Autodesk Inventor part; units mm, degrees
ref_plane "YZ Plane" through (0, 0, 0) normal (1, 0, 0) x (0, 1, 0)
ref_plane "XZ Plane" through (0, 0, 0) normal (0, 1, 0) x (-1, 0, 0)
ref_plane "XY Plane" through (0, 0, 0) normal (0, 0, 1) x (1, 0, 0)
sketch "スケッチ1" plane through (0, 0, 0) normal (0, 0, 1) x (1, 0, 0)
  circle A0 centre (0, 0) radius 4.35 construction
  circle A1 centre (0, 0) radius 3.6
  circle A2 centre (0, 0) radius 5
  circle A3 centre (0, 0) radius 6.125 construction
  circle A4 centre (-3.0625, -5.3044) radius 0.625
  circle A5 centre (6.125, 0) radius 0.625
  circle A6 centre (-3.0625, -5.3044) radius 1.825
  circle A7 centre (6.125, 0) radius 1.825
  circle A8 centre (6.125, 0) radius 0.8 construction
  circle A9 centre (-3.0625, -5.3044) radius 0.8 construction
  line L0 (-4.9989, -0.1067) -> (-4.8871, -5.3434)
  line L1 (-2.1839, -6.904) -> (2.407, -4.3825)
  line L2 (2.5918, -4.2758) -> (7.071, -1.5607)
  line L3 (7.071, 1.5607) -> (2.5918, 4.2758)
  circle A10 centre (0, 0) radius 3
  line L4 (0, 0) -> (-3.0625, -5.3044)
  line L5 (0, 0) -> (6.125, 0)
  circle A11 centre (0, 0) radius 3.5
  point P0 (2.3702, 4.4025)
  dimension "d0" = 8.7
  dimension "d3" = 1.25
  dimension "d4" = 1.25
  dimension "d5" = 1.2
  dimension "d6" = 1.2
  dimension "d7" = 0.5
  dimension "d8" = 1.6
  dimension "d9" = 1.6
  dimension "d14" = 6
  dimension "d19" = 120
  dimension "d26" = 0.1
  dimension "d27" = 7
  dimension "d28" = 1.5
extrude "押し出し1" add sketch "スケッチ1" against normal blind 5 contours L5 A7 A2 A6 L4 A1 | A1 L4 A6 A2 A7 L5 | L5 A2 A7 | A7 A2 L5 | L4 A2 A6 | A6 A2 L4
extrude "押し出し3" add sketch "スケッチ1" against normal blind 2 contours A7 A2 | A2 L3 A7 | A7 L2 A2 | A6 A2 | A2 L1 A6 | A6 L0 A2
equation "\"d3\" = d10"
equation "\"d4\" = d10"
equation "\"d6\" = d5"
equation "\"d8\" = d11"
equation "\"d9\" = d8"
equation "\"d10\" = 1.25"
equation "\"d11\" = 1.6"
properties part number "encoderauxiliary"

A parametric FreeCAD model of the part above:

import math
import FreeCAD as App
import Part
import Sketcher

V = App.Vector
Q = App.Units.Quantity

doc = App.newDocument("Part")
body = doc.addObject("PartDesign::Body", "Body")

# Sketch on XY plane
sketch1 = body.newObject("Sketcher::SketchObject", "Sketch")
sketch1.AttachmentSupport = (doc.getObject("XY_Plane"), [""])
sketch1.MapMode = "FlatFace"
sketch1.addGeometry(Part.Circle(V(0, 0, 0), V(0, 0, 1), 5), False)
sketch1.addGeometry(Part.Circle(V(0, 0, 0), V(0, 0, 1), 3.6), False)
sketch1.addConstraint(Sketcher.Constraint("Coincident", 0, 3, -1, 1))
sketch1.addConstraint(Sketcher.Constraint("Coincident", 1, 3, -1, 1))
sketch1.addConstraint(Sketcher.Constraint("Diameter", 0, Q("10 mm")))
sketch1.addConstraint(Sketcher.Constraint("Diameter", 1, Q("7.2 mm")))
pad1 = body.newObject("PartDesign::Pad", "Pad")
pad1.Profile = sketch1
pad1.Length = 5
pad1.Reversed = True

# Sketch on XY plane
sketch2 = body.newObject("Sketcher::SketchObject", "Sketch001")
sketch2.AttachmentSupport = (doc.getObject("XY_Plane"), [""])
sketch2.MapMode = "FlatFace"
sketch2.addGeometry(Part.LineSegment(V(7.071, 1.5607, 0), V(2.5918, 4.2758, 0)), False)
sketch2.addGeometry(Part.ArcOfCircle(Part.Circle(V(0, 0, 0), V(0, 0, 1), 5), math.radians(0), math.radians(58.777618)), False)
sketch2.addGeometry(Part.ArcOfCircle(Part.Circle(V(0, 0, 0), V(0, 0, 1), 5), math.radians(-58.777618), math.radians(0)), False)
sketch2.addGeometry(Part.LineSegment(V(2.5918, -4.2758, 0), V(7.071, -1.5607, 0)), False)
sketch2.addGeometry(Part.ArcOfCircle(Part.Circle(V(6.125, 0, 0), V(0, 0, 1), 1.825), math.radians(-58.778343), math.radians(58.778343)), False)
sketch2.addGeometry(Part.Circle(V(6.125, 0, 0), V(0, 0, 1), 0.625), False)
sketch2.addGeometry(Part.ArcOfCircle(Part.Circle(V(-3.0625, -5.3044, 0), V(0, 0, 1), 1.825), math.radians(-178.775515), math.radians(-61.221666)), False)
sketch2.addGeometry(Part.LineSegment(V(-2.1839, -6.904, 0), V(2.407, -4.3825, 0)), False)
sketch2.addGeometry(Part.ArcOfCircle(Part.Circle(V(0, 0, 0), V(0, 0, 1), 5), math.radians(-120.000026), math.radians(-61.223094)), False)
sketch2.addGeometry(Part.ArcOfCircle(Part.Circle(V(0, 0, 0), V(0, 0, 1), 5), math.radians(-178.777225), math.radians(-120.000026)), False)
sketch2.addGeometry(Part.LineSegment(V(-4.9989, -0.1067, 0), V(-4.8871, -5.3434, 0)), False)
sketch2.addGeometry(Part.Circle(V(-3.0625, -5.3044, 0), V(0, 0, 1), 0.625), False)
sketch2.addConstraint(Sketcher.Constraint("Tangent", 0, 2, 1, 2))
sketch2.addConstraint(Sketcher.Constraint("Tangent", 1, 1, 2, 2))
sketch2.addConstraint(Sketcher.Constraint("Tangent", 2, 1, 3, 1))
sketch2.addConstraint(Sketcher.Constraint("Tangent", 3, 2, 4, 1))
sketch2.addConstraint(Sketcher.Constraint("Tangent", 4, 2, 0, 1))
sketch2.addConstraint(Sketcher.Constraint("Tangent", 6, 2, 7, 1))
sketch2.addConstraint(Sketcher.Constraint("Tangent", 7, 2, 8, 2))
sketch2.addConstraint(Sketcher.Constraint("Tangent", 8, 1, 9, 2))
sketch2.addConstraint(Sketcher.Constraint("Tangent", 9, 1, 10, 1))
sketch2.addConstraint(Sketcher.Constraint("Tangent", 10, 2, 6, 1))
sketch2.addConstraint(Sketcher.Constraint("Coincident", 1, 3, -1, 1))
sketch2.addConstraint(Sketcher.Constraint("Coincident", 8, 3, -1, 1))
sketch2.addConstraint(Sketcher.Constraint("Coincident", 5, 3, 4, 3))
sketch2.addConstraint(Sketcher.Constraint("Coincident", 11, 3, 6, 3))
sketch2.addConstraint(Sketcher.Constraint("Equal", 1, 2))
sketch2.addConstraint(Sketcher.Constraint("Equal", 4, 6))
sketch2.addConstraint(Sketcher.Constraint("Equal", 2, 8))
sketch2.addConstraint(Sketcher.Constraint("Equal", 8, 9))
sketch2.addConstraint(Sketcher.Constraint("Equal", 5, 11))
sketch2.addConstraint(Sketcher.Constraint("PointOnObject", 4, 3, -1))
sketch2.addConstraint(Sketcher.Constraint("PointOnObject", 1, 1, -1))
sketch2.addConstraint(Sketcher.Constraint("Equal", 3, 7))
sketch2.addConstraint(Sketcher.Constraint("Diameter", 5, Q("1.25 mm")))
sketch2.addConstraint(Sketcher.Constraint("Radius", 1, Q("5 mm")))
sketch2.addConstraint(Sketcher.Constraint("Radius", 4, Q("1.825 mm")))
sketch2.addConstraint(Sketcher.Constraint("DistanceX", 8, 1, -1, 1, Q("2.5 mm")))
sketch2.addConstraint(Sketcher.Constraint("DistanceY", 6, 2, 6, 3, Q("1.5996 mm")))
sketch2.addConstraint(Sketcher.Constraint("Distance", 10, Q("5.238 mm")))
pad2 = body.newObject("PartDesign::Pad", "Pad001")
pad2.Profile = sketch2
pad2.Length = 2
pad2.Reversed = True

doc.recompute()
